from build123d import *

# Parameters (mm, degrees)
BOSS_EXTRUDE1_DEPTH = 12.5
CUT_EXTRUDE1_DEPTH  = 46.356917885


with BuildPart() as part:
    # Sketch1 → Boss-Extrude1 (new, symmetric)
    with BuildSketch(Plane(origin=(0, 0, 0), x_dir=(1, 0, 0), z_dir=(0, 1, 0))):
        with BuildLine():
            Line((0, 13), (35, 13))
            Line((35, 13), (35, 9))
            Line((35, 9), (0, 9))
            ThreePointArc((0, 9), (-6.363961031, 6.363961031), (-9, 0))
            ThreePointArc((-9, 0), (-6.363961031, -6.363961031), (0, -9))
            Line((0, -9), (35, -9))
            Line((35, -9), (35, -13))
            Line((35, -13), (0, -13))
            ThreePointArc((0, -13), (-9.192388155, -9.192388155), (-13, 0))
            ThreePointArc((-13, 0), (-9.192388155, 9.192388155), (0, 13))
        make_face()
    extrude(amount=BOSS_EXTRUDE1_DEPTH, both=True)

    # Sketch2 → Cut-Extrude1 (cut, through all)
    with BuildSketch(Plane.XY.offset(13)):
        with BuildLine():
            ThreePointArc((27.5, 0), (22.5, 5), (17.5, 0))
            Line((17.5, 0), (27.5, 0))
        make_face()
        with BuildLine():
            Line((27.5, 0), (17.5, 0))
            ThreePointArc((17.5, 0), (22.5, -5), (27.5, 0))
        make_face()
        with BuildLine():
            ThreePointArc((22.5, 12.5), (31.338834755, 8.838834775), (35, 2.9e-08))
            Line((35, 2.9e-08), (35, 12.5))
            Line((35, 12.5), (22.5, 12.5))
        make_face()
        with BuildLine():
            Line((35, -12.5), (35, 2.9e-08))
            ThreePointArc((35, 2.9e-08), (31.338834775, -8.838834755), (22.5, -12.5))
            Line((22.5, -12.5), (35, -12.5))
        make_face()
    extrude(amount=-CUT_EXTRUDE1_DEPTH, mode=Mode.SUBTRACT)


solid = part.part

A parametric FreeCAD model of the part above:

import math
import FreeCAD as App
import Part
import Sketcher

V = App.Vector

doc = App.newDocument("Part")
body = doc.addObject("PartDesign::Body", "Body")

# Sketch on XZ plane
sketch1 = body.newObject("Sketcher::SketchObject", "Sketch")
sketch1.AttachmentSupport = (doc.getObject("XZ_Plane"), [""])
sketch1.MapMode = "FlatFace"
sketch1.addGeometry(Part.LineSegment(V(35, -13, 0), V(0, -13, 0)), False)
sketch1.addGeometry(Part.ArcOfCircle(Part.Circle(V(0, 0, 0), V(0, 0, 1), 13), math.radians(-180), math.radians(-90)), False)
sketch1.addGeometry(Part.ArcOfCircle(Part.Circle(V(0, 0, 0), V(0, 0, 1), 13), math.radians(90), math.radians(180)), False)
sketch1.addGeometry(Part.LineSegment(V(0, 13, 0), V(35, 13, 0)), False)
sketch1.addGeometry(Part.LineSegment(V(35, 13, 0), V(35, 9, 0)), False)
sketch1.addGeometry(Part.LineSegment(V(35, 9, 0), V(0, 9, 0)), False)
sketch1.addGeometry(Part.ArcOfCircle(Part.Circle(V(0, 0, 0), V(0, 0, 1), 9), math.radians(90), math.radians(180)), False)
sketch1.addGeometry(Part.ArcOfCircle(Part.Circle(V(0, 0, 0), V(0, 0, 1), 9), math.radians(180), math.radians(270)), False)
sketch1.addGeometry(Part.LineSegment(V(0, -9, 0), V(35, -9, 0)), False)
sketch1.addGeometry(Part.LineSegment(V(35, -9, 0), V(35, -13, 0)), False)
sketch1.addConstraint(Sketcher.Constraint("Tangent", 0, 2, 1, 2))
sketch1.addConstraint(Sketcher.Constraint("Tangent", 1, 1, 2, 2))
sketch1.addConstraint(Sketcher.Constraint("Tangent", 2, 1, 3, 1))
sketch1.addConstraint(Sketcher.Constraint("Coincident", 3, 2, 4, 1))
sketch1.addConstraint(Sketcher.Constraint("Coincident", 4, 2, 5, 1))
sketch1.addConstraint(Sketcher.Constraint("Tangent", 5, 2, 6, 1))
sketch1.addConstraint(Sketcher.Constraint("Tangent", 6, 2, 7, 1))
sketch1.addConstraint(Sketcher.Constraint("Tangent", 7, 2, 8, 1))
sketch1.addConstraint(Sketcher.Constraint("Coincident", 8, 2, 9, 1))
sketch1.addConstraint(Sketcher.Constraint("Coincident", 9, 2, 0, 1))
sketch1.addConstraint(Sketcher.Constraint("Horizontal", 0))
sketch1.addConstraint(Sketcher.Constraint("Horizontal", 3))
sketch1.addConstraint(Sketcher.Constraint("Vertical", 4))
sketch1.addConstraint(Sketcher.Constraint("Horizontal", 5))
sketch1.addConstraint(Sketcher.Constraint("Horizontal", 8))
sketch1.addConstraint(Sketcher.Constraint("Vertical", 9))
sketch1.addConstraint(Sketcher.Constraint("Coincident", 1, 3, -1, 1))
sketch1.addConstraint(Sketcher.Constraint("Coincident", 6, 3, -1, 1))
sketch1.addConstraint(Sketcher.Constraint("Equal", 1, 2))
sketch1.addConstraint(Sketcher.Constraint("Equal", 6, 7))
sketch1.addConstraint(Sketcher.Constraint("PointOnObject", 1, 1, -1))
sketch1.addConstraint(Sketcher.Constraint("PointOnObject", 6, 2, -1))
sketch1.addConstraint(Sketcher.Constraint("Vertical", 4, 2, 8, 2))
sketch1.addConstraint(Sketcher.Constraint("Radius", 1, 13.0))
sketch1.addConstraint(Sketcher.Constraint("Radius", 6, 9.0))
sketch1.addConstraint(Sketcher.Constraint("DistanceX", 0, 2, 0, 1, 35.0))
pad1 = body.newObject("PartDesign::Pad", "Pad")
pad1.Profile = sketch1
pad1.Length = 25
pad1.Midplane = True

# Sketch on XY plane
sketch2 = body.newObject("Sketcher::SketchObject", "Sketch001")
sketch2.AttachmentSupport = (doc.getObject("XY_Plane"), [""])
sketch2.MapMode = "FlatFace"
sketch2.AttachmentOffset = App.Placement(V(0, 0, 13), App.Rotation())
sketch2.addGeometry(Part.Circle(V(22, 0, 0), V(0, 0, 1), 5), False)
sketch2.addGeometry(Part.ArcOfCircle(Part.Circle(V(23, 0, 0), V(0, 0, 1), 12), math.radians(0), math.radians(90)), False)
sketch2.addGeometry(Part.LineSegment(V(35, 0, 0), V(35, 12, 0)), False)
sketch2.addGeometry(Part.LineSegment(V(35, 12, 0), V(22, 12, 0)), False)
sketch2.addGeometry(Part.LineSegment(V(35, -12, 0), V(35, 0, 0)), False)
sketch2.addGeometry(Part.ArcOfCircle(Part.Circle(V(23, 0, 0), V(0, 0, 1), 12), math.radians(-90), math.radians(0)), False)
sketch2.addGeometry(Part.LineSegment(V(22, -12, 0), V(35, -12, 0)), False)
sketch2.addConstraint(Sketcher.Constraint("Tangent", 1, 1, 2, 1))
sketch2.addConstraint(Sketcher.Constraint("Coincident", 2, 2, 3, 1))
sketch2.addConstraint(Sketcher.Constraint("Tangent", 3, 2, 1, 2))
sketch2.addConstraint(Sketcher.Constraint("Tangent", 4, 2, 5, 2))
sketch2.addConstraint(Sketcher.Constraint("Tangent", 5, 1, 6, 1))
sketch2.addConstraint(Sketcher.Constraint("Coincident", 6, 2, 4, 1))
sketch2.addConstraint(Sketcher.Constraint("Vertical", 2))
sketch2.addConstraint(Sketcher.Constraint("Horizontal", 3))
sketch2.addConstraint(Sketcher.Constraint("Vertical", 4))
sketch2.addConstraint(Sketcher.Constraint("Horizontal", 6))
sketch2.addConstraint(Sketcher.Constraint("Coincident", 1, 3, 0, 3))
sketch2.addConstraint(Sketcher.Constraint("Coincident", 5, 3, 0, 3))
sketch2.addConstraint(Sketcher.Constraint("Equal", 1, 5))
sketch2.addConstraint(Sketcher.Constraint("PointOnObject", 0, 3, -1))
sketch2.addConstraint(Sketcher.Constraint("Diameter", 0, 10.0))
sketch2.addConstraint(Sketcher.Constraint("Radius", 1, 12.5))
sketch2.addConstraint(Sketcher.Constraint("DistanceX", -1, 1, 1, 1, 35.0))
pocket1 = body.newObject("PartDesign::Pocket", "Pocket")
pocket1.Profile = sketch2
pocket1.Type = "ThroughAll"

doc.recompute()
